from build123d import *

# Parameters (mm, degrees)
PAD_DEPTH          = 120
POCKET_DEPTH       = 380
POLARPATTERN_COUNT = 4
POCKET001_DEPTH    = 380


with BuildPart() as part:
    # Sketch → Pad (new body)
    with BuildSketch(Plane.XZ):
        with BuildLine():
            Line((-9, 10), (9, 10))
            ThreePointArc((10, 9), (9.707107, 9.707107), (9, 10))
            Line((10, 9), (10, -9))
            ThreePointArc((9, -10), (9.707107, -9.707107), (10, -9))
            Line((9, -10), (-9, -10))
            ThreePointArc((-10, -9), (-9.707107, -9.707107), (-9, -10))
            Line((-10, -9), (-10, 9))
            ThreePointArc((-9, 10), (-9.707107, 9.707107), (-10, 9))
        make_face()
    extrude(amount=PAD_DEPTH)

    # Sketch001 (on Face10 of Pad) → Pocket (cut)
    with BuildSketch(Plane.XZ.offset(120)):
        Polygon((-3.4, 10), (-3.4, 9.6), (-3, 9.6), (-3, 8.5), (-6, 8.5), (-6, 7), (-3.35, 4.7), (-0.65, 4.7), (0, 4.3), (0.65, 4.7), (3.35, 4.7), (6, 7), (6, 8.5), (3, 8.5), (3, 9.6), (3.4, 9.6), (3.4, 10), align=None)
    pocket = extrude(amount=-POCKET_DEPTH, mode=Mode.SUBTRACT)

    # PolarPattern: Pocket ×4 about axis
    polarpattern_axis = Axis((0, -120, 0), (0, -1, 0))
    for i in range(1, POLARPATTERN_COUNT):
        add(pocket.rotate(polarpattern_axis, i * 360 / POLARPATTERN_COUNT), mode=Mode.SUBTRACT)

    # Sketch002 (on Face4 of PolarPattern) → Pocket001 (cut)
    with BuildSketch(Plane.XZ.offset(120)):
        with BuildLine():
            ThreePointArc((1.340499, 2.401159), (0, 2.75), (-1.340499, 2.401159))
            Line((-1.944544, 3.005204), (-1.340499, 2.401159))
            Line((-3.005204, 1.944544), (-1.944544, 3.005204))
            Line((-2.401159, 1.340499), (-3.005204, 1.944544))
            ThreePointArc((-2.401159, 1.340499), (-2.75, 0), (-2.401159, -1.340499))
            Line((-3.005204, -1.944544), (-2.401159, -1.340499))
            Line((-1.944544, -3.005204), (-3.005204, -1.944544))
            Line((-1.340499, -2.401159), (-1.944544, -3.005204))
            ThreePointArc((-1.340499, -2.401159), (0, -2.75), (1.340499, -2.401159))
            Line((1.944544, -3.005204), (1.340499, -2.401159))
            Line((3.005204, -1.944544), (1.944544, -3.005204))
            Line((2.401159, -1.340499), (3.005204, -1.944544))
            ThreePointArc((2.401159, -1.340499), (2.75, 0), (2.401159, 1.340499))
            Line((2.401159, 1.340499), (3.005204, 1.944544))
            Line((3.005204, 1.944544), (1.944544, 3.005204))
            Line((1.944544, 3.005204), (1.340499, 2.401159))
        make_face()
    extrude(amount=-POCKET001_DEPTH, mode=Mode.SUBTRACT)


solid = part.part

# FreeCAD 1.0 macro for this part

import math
import FreeCAD as App
import Part
import Sketcher

doc = App.newDocument("Part")
params = doc.addObject("Spreadsheet::Sheet", "Params")
for row, (alias, value) in enumerate([
    ("sketch1_radius", "0.999999 mm"),
    ("sketch1_width", "18 mm"),
    ("pad1_length", "120 mm"),
    ("sketch2_width", "3 mm"),
    ("sketch2_width2", "0.4 mm"),
    ("sketch2_width3", "2.7 mm"),
    ("sketch2_width4", "6.8 mm"),
    ("sketch2_height", "1.1 mm"),
    ("pocket1_length", "380 mm"),
    ("sketch3_length", "1.5 mm"),
    ("pocket2_length", "380 mm"),
], start=1):
    params.set(f"A{row}", alias)
    params.set(f"B{row}", "=" + value)
    params.setAlias(f"B{row}", alias)

body = doc.addObject("PartDesign::Body", "Body")

# Sketch on XZ plane
sketch1 = body.newObject("Sketcher::SketchObject", "Sketch")
sketch1.AttachmentSupport = (doc.getObject("XZ_Plane"), [""])
sketch1.MapMode = "FlatFace"
sketch1.addGeometry([
    Part.LineSegment(App.Vector(9, 10, 0), App.Vector(-9, 10, 0)),  # 0
    Part.ArcOfCircle(Part.Circle(App.Vector(-9, 9, 0), App.Vector(0, 0, 1), 1), math.radians(90), math.radians(180)),  # 1
    Part.LineSegment(App.Vector(-10, 9, 0), App.Vector(-10, -9, 0)),  # 2
    Part.ArcOfCircle(Part.Circle(App.Vector(-9, -9, 0), App.Vector(0, 0, 1), 1), math.radians(180), math.radians(270)),  # 3
    Part.LineSegment(App.Vector(-9, -10, 0), App.Vector(9, -10, 0)),  # 4
    Part.ArcOfCircle(Part.Circle(App.Vector(9, -9, 0), App.Vector(0, 0, 1), 1), math.radians(-90), math.radians(0)),  # 5
    Part.LineSegment(App.Vector(10, -9, 0), App.Vector(10, 9, 0)),  # 6
    Part.ArcOfCircle(Part.Circle(App.Vector(9, 9, 0), App.Vector(0, 0, 1), 1), math.radians(0), math.radians(90)),  # 7
], False)
sketch1.addConstraint([
    Sketcher.Constraint("Tangent", 0, 2, 1, 1),
    Sketcher.Constraint("Tangent", 1, 2, 2, 1),
    Sketcher.Constraint("Tangent", 2, 2, 3, 1),
    Sketcher.Constraint("Tangent", 3, 2, 4, 1),
    Sketcher.Constraint("Tangent", 4, 2, 5, 1),
    Sketcher.Constraint("Tangent", 5, 2, 6, 1),
    Sketcher.Constraint("Tangent", 6, 2, 7, 1),
    Sketcher.Constraint("Tangent", 7, 2, 0, 1),
    Sketcher.Constraint("Horizontal", 0),
    Sketcher.Constraint("Vertical", 2),
    Sketcher.Constraint("Horizontal", 4),
    Sketcher.Constraint("Vertical", 6),
    Sketcher.Constraint("Equal", 1, 3),
    Sketcher.Constraint("Equal", 3, 5),
    Sketcher.Constraint("Equal", 5, 7),
    Sketcher.Constraint("Symmetric", 1, 3, 5, 3, -1, 1),
    Sketcher.Constraint("Equal", 4, 2),
    Sketcher.Constraint("Radius", 1, 0.999999),
    Sketcher.Constraint("DistanceX", 0, 2, 0, 1, 18.0),
])
sketch1.setExpression("Constraints[17]", "Params.sketch1_radius")
sketch1.setExpression("Constraints[18]", "Params.sketch1_width")
pad1 = body.newObject("PartDesign::Pad", "Pad")
pad1.Profile = sketch1
pad1.setExpression("Length", "Params.pad1_length")

# Sketch on XZ plane
sketch2 = body.newObject("Sketcher::SketchObject", "Sketch001")
sketch2.AttachmentSupport = (doc.getObject("XZ_Plane"), [""])
sketch2.MapMode = "FlatFace"
sketch2.AttachmentOffset = App.Placement(App.Vector(0, 0, 120), App.Rotation())
sketch2.addGeometry([
    Part.LineSegment(App.Vector(-3.4, 10, 0), App.Vector(-3.4, 9.6, 0)),  # 0
    Part.LineSegment(App.Vector(-3.4, 9.6, 0), App.Vector(-3, 9.6, 0)),  # 1
    Part.LineSegment(App.Vector(-3, 9.6, 0), App.Vector(-3, 8.5, 0)),  # 2
    Part.LineSegment(App.Vector(-3, 8.5, 0), App.Vector(-6, 8.5, 0)),  # 3
    Part.LineSegment(App.Vector(-6, 8.5, 0), App.Vector(-6, 7, 0)),  # 4
    Part.LineSegment(App.Vector(-6, 7, 0), App.Vector(-3.35, 4.7, 0)),  # 5
    Part.LineSegment(App.Vector(-3.35, 4.7, 0), App.Vector(-0.65, 4.7, 0)),  # 6
    Part.LineSegment(App.Vector(-0.65, 4.7, 0), App.Vector(0, 4.3, 0)),  # 7
    Part.LineSegment(App.Vector(0, 4.3, 0), App.Vector(0.65, 4.7, 0)),  # 8
    Part.LineSegment(App.Vector(0.65, 4.7, 0), App.Vector(3.35, 4.7, 0)),  # 9
    Part.LineSegment(App.Vector(3.35, 4.7, 0), App.Vector(6, 7, 0)),  # 10
    Part.LineSegment(App.Vector(6, 7, 0), App.Vector(6, 8.5, 0)),  # 11
    Part.LineSegment(App.Vector(6, 8.5, 0), App.Vector(3, 8.5, 0)),  # 12
    Part.LineSegment(App.Vector(3, 8.5, 0), App.Vector(3, 9.6, 0)),  # 13
    Part.LineSegment(App.Vector(3, 9.6, 0), App.Vector(3.4, 9.6, 0)),  # 14
    Part.LineSegment(App.Vector(3.4, 9.6, 0), App.Vector(3.4, 10, 0)),  # 15
    Part.LineSegment(App.Vector(3.4, 10, 0), App.Vector(-3.4, 10, 0)),  # 16
], False)
sketch2.addConstraint([
    Sketcher.Constraint("Coincident", 0, 2, 1, 1),
    Sketcher.Constraint("Coincident", 1, 2, 2, 1),
    Sketcher.Constraint("Coincident", 2, 2, 3, 1),
    Sketcher.Constraint("Coincident", 3, 2, 4, 1),
    Sketcher.Constraint("Coincident", 4, 2, 5, 1),
    Sketcher.Constraint("Coincident", 5, 2, 6, 1),
    Sketcher.Constraint("Coincident", 6, 2, 7, 1),
    Sketcher.Constraint("Coincident", 7, 2, 8, 1),
    Sketcher.Constraint("Coincident", 8, 2, 9, 1),
    Sketcher.Constraint("Coincident", 9, 2, 10, 1),
    Sketcher.Constraint("Coincident", 10, 2, 11, 1),
    Sketcher.Constraint("Coincident", 11, 2, 12, 1),
    Sketcher.Constraint("Coincident", 12, 2, 13, 1),
    Sketcher.Constraint("Coincident", 13, 2, 14, 1),
    Sketcher.Constraint("Coincident", 14, 2, 15, 1),
    Sketcher.Constraint("Coincident", 15, 2, 16, 1),
    Sketcher.Constraint("Coincident", 16, 2, 0, 1),
    Sketcher.Constraint("Vertical", 0),
    Sketcher.Constraint("Horizontal", 1),
    Sketcher.Constraint("Vertical", 2),
    Sketcher.Constraint("Horizontal", 3),
    Sketcher.Constraint("Vertical", 4),
    Sketcher.Constraint("Horizontal", 6),
    Sketcher.Constraint("Horizontal", 9),
    Sketcher.Constraint("Vertical", 11),
    Sketcher.Constraint("Horizontal", 12),
    Sketcher.Constraint("Vertical", 13),
    Sketcher.Constraint("Horizontal", 14),
    Sketcher.Constraint("Vertical", 15),
    Sketcher.Constraint("Horizontal", 16),
    Sketcher.Constraint("Symmetric", 6, 2, 8, 2, -2),
    Sketcher.Constraint("Symmetric", 4, 2, 10, 2, -2),
    Sketcher.Constraint("Symmetric", 2, 2, 12, 2, -2),
    Sketcher.Constraint("Symmetric", 0, 2, 14, 2, -2),
    Sketcher.Constraint("PointOnObject", 7, 2, -2),
    Sketcher.Constraint("Equal", 6, 9),
    Sketcher.Constraint("Equal", 14, 0),
    Sketcher.Constraint("DistanceX", 3, 2, 3, 1, 3.0),
    Sketcher.Constraint("DistanceX", 1, 1, 1, 2, 0.4),
    Sketcher.Constraint("DistanceX", 6, 1, 6, 2, 2.7),
    Sketcher.Constraint("DistanceX", 16, 2, 16, 1, 6.8),
    Sketcher.Constraint("DistanceY", 2, 2, 2, 1, 1.1),
    Sketcher.Constraint("DistanceY", 4, 2, 4, 1, 1.5),
    Sketcher.Constraint("DistanceY", -1, 1, 4, 2, 7.0),
    Sketcher.Constraint("DistanceX", 5, 2, 8, 2, 4.0),
    Sketcher.Constraint("DistanceY", -1, 1, 5, 2, 4.7),
    Sketcher.Constraint("DistanceY", -1, 1, 7, 2, 4.3),
])
sketch2.setExpression("Constraints[37]", "Params.sketch2_width")
sketch2.setExpression("Constraints[38]", "Params.sketch2_width2")
sketch2.setExpression("Constraints[39]", "Params.sketch2_width3")
sketch2.setExpression("Constraints[40]", "Params.sketch2_width4")
sketch2.setExpression("Constraints[41]", "Params.sketch2_height")
pocket1 = body.newObject("PartDesign::Pocket", "Pocket")
pocket1.Profile = sketch2
pocket1.setExpression("Length", "Params.pocket1_length")
doc.recompute()

polarpattern = body.newObject("PartDesign::PolarPattern", "PolarPattern")
polarpattern.Originals = [pocket1]
polarpattern.Axis = (doc.getObject("Y_Axis"), [""])
polarpattern.Angle = 360
polarpattern.Occurrences = 4
body.Tip = polarpattern

# Sketch on XZ plane
sketch3 = body.newObject("Sketcher::SketchObject", "Sketch002")
sketch3.AttachmentSupport = (doc.getObject("XZ_Plane"), [""])
sketch3.MapMode = "FlatFace"
sketch3.AttachmentOffset = App.Placement(App.Vector(0, 0, 120), App.Rotation())
sketch3.addGeometry([
    Part.ArcOfCircle(Part.Circle(App.Vector(0, 0, 0), App.Vector(0, 0, 1), 2.8), math.radians(61), math.radians(119)),  # 0
    Part.LineSegment(App.Vector(-1.3, 2.4, 0), App.Vector(-1.9, 3, 0)),  # 1
    Part.LineSegment(App.Vector(-1.9, 3, 0), App.Vector(-3, 1.9, 0)),  # 2
    Part.LineSegment(App.Vector(-3, 1.9, 0), App.Vector(-2.4, 1.3, 0)),  # 3
    Part.ArcOfCircle(Part.Circle(App.Vector(0, 0, 0), App.Vector(0, 0, 1), 2.8), math.radians(151), math.radians(209)),  # 4
    Part.LineSegment(App.Vector(-2.4, -1.3, 0), App.Vector(-3, -1.9, 0)),  # 5
    Part.LineSegment(App.Vector(-3, -1.9, 0), App.Vector(-1.9, -3, 0)),  # 6
    Part.LineSegment(App.Vector(-1.9, -3, 0), App.Vector(-1.3, -2.4, 0)),  # 7
    Part.ArcOfCircle(Part.Circle(App.Vector(0, 0, 0), App.Vector(0, 0, 1), 2.8), math.radians(-119), math.radians(-61)),  # 8
    Part.LineSegment(App.Vector(1.3, -2.4, 0), App.Vector(1.9, -3, 0)),  # 9
    Part.LineSegment(App.Vector(1.9, -3, 0), App.Vector(3, -1.9, 0)),  # 10
    Part.LineSegment(App.Vector(3, -1.9, 0), App.Vector(2.4, -1.3, 0)),  # 11
    Part.ArcOfCircle(Part.Circle(App.Vector(0, 0, 0), App.Vector(0, 0, 1), 2.8), math.radians(-29), math.radians(29)),  # 12
    Part.LineSegment(App.Vector(2.4, 1.3, 0), App.Vector(3, 1.9, 0)),  # 13
    Part.LineSegment(App.Vector(3, 1.9, 0), App.Vector(1.9, 3, 0)),  # 14
    Part.LineSegment(App.Vector(1.9, 3, 0), App.Vector(1.3, 2.4, 0)),  # 15
], False)
sketch3.addConstraint([
    Sketcher.Constraint("Coincident", 0, 2, 1, 1),
    Sketcher.Constraint("Coincident", 1, 2, 2, 1),
    Sketcher.Constraint("Coincident", 2, 2, 3, 1),
    Sketcher.Constraint("Coincident", 3, 2, 4, 1),
    Sketcher.Constraint("Coincident", 4, 2, 5, 1),
    Sketcher.Constraint("Coincident", 5, 2, 6, 1),
    Sketcher.Constraint("Coincident", 6, 2, 7, 1),
    Sketcher.Constraint("Coincident", 7, 2, 8, 1),
    Sketcher.Constraint("Coincident", 8, 2, 9, 1),
    Sketcher.Constraint("Coincident", 9, 2, 10, 1),
    Sketcher.Constraint("Coincident", 10, 2, 11, 1),
    Sketcher.Constraint("Coincident", 11, 2, 12, 1),
    Sketcher.Constraint("Coincident", 12, 2, 13, 1),
    Sketcher.Constraint("Coincident", 13, 2, 14, 1),
    Sketcher.Constraint("Coincident", 14, 2, 15, 1),
    Sketcher.Constraint("Coincident", 15, 2, 0, 1),
    Sketcher.Constraint("Coincident", 0, 3, -1, 1),
    Sketcher.Constraint("Coincident", 4, 3, -1, 1),
    Sketcher.Constraint("Coincident", 8, 3, -1, 1),
    Sketcher.Constraint("Coincident", 12, 3, -1, 1),
    Sketcher.Constraint("Equal", 0, 4),
    Sketcher.Constraint("Equal", 4, 8),
    Sketcher.Constraint("Equal", 8, 12),
    Sketcher.Constraint("Symmetric", 1, 2, 9, 2, -1, 1),
    Sketcher.Constraint("Symmetric", 2, 2, 10, 2, -1, 1),
    Sketcher.Constraint("Symmetric", 5, 2, 13, 2, -1, 1),
    Sketcher.Constraint("Symmetric", 6, 2, 14, 2, -1, 1),
    Sketcher.Constraint("Symmetric", 6, 2, 9, 2, -2),
    Sketcher.Constraint("Symmetric", 5, 2, 10, 2, -2),
    Sketcher.Constraint("Perpendicular", 1, 2),
    Sketcher.Constraint("Perpendicular", 2, 3),
    Sketcher.Constraint("Perpendicular", 3, 5),
    Sketcher.Constraint("Perpendicular", 5, 6),
    Sketcher.Constraint("Perpendicular", 6, 7),
    Sketcher.Constraint("Perpendicular", 7, 9),
    Sketcher.Constraint("Perpendicular", 10, 11),
    Sketcher.Constraint("Perpendicular", 11, 13),
    Sketcher.Constraint("Perpendicular", 14, 15),
    Sketcher.Constraint("Equal", 1, 3),
    Sketcher.Constraint("Distance", 2, 1.5),
    Sketcher.Constraint("Radius", 0, 2.750003),
    Sketcher.Constraint("DistanceY", 8, 3, 1, 2, 3.005201),
])
sketch3.setExpression("Constraints[39]", "Params.sketch3_length")
pocket2 = body.newObject("PartDesign::Pocket", "Pocket001")
pocket2.Profile = sketch3
pocket2.setExpression("Length", "Params.pocket2_length")

doc.recompute()
